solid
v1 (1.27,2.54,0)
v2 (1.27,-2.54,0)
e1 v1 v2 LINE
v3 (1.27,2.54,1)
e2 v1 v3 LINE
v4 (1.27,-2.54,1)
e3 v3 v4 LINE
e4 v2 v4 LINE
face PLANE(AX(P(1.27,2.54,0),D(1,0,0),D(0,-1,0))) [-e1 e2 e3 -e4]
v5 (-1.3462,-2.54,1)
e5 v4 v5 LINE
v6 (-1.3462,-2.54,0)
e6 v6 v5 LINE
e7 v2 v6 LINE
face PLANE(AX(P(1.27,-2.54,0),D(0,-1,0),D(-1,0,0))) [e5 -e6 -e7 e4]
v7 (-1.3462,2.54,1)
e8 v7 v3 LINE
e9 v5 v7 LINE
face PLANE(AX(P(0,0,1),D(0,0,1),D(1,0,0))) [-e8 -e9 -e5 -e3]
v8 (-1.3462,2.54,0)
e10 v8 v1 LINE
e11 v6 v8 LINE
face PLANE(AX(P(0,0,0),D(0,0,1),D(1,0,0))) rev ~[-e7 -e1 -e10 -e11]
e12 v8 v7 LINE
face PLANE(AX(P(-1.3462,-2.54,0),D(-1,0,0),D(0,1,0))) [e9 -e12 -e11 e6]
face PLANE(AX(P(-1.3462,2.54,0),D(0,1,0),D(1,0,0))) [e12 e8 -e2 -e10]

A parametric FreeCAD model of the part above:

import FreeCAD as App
import Part
import Sketcher
Q = App.Units.Quantity

doc = App.newDocument("Part")
body = doc.addObject("PartDesign::Body", "Body")

sketch1 = body.newObject("Sketcher::SketchObject", "Sketch")
sketch1.AttachmentSupport = (doc.getObject("XY_Plane"), [""])
sketch1.MapMode = "FlatFace"
sketch1.addGeometry([
    Part.LineSegment(App.Vector(1.3, 2.5, 0), App.Vector(-1.3, 2.5, 0)),
    Part.LineSegment(App.Vector(-1.3, 2.5, 0), App.Vector(-1.3, -2.5, 0)),
    Part.LineSegment(App.Vector(-1.3, -2.5, 0), App.Vector(1.3, -2.5, 0)),
    Part.LineSegment(App.Vector(1.3, -2.5, 0), App.Vector(1.3, 2.5, 0)),
], False)
sketch1.addConstraint([
    Sketcher.Constraint("Coincident", 0, 2, 1, 1),
    Sketcher.Constraint("Coincident", 1, 2, 2, 1),
    Sketcher.Constraint("Coincident", 2, 2, 3, 1),
    Sketcher.Constraint("Coincident", 3, 2, 0, 1),
    Sketcher.Constraint("Horizontal", 0),
    Sketcher.Constraint("Vertical", 1),
    Sketcher.Constraint("Horizontal", 2),
    Sketcher.Constraint("Vertical", 3),
    Sketcher.Constraint("DistanceY", 1, 2, 1, 1, Q("0.2 in")),
    Sketcher.Constraint("DistanceY", -1, 1, 0, 2, Q("0.1 in")),
    Sketcher.Constraint("DistanceX", 0, 2, 0, 1, Q("0.103 in")),
    Sketcher.Constraint("DistanceX", -1, 1, 2, 2, Q("0.05 in")),
])
pad1 = body.newObject("PartDesign::Pad", "Pad")
pad1.Profile = sketch1
pad1.Length = 1

doc.recompute()
